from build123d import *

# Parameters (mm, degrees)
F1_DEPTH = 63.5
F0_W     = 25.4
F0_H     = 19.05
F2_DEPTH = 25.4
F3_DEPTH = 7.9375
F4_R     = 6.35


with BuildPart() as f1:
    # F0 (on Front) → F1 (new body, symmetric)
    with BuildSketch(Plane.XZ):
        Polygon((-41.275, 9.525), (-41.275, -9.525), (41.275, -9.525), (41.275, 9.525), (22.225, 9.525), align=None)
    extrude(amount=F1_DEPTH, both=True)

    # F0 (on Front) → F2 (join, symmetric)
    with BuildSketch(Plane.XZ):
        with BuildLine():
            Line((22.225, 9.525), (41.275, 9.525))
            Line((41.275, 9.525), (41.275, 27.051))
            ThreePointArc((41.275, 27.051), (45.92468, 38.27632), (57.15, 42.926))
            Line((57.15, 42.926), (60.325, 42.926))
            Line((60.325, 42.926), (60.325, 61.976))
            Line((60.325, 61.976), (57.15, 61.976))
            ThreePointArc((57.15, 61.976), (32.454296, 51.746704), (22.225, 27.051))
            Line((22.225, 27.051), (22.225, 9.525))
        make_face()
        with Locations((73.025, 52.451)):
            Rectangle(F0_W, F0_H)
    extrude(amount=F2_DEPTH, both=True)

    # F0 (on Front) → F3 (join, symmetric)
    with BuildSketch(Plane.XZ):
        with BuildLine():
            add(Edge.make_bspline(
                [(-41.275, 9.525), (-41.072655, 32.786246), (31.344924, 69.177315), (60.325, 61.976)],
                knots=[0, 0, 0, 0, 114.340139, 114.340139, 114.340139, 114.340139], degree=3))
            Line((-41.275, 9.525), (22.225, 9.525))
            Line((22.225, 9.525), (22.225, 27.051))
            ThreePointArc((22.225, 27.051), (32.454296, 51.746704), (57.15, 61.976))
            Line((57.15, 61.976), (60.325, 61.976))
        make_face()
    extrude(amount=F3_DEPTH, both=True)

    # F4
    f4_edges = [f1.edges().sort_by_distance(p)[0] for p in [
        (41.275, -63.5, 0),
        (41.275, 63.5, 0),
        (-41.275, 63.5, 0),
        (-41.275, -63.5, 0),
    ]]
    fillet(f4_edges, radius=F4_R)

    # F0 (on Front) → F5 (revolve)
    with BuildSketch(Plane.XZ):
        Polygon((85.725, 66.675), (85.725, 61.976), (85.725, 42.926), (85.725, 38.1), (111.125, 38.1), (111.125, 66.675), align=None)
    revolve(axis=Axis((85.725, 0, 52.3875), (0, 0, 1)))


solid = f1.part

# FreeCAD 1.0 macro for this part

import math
import FreeCAD as App
import Part
import Sketcher
from FreeCAD import Vector
Q = App.Units.Quantity


def edges_at(feature, points):
    """Names of the edges that pass closest to the given points."""
    edges = feature.Shape.Edges
    near = lambda p: min(range(len(edges)), key=lambda i: edges[i].distToShape(Part.Vertex(*p))[0])
    return sorted({f"Edge{near(p) + 1}" for p in points})

doc = App.newDocument("Part")
body = doc.addObject("PartDesign::Body", "Body")

sketch1 = doc.addObject("Sketcher::SketchObject", "Sketch")
body.addObject(sketch1)
sketch1.AttachmentSupport = (doc.XZ_Plane, [""])
sketch1.MapMode = "FlatFace"
sketch1.addGeometry([
    Part.LineSegment(Vector(-41, 10, 0), Vector(-41, -10, 0)),
    Part.LineSegment(Vector(-41, -10, 0), Vector(41, -10, 0)),
    Part.LineSegment(Vector(41, -10, 0), Vector(41, 10, 0)),
    Part.LineSegment(Vector(41, 10, 0), Vector(-41, 10, 0)),
], False)
sketch1.addConstraint([
    Sketcher.Constraint("Coincident", 0, 2, 1, 1),
    Sketcher.Constraint("Coincident", 1, 2, 2, 1),
    Sketcher.Constraint("Coincident", 2, 2, 3, 1),
    Sketcher.Constraint("Coincident", 3, 2, 0, 1),
    Sketcher.Constraint("Vertical", 0),
    Sketcher.Constraint("Horizontal", 1),
    Sketcher.Constraint("Vertical", 2),
    Sketcher.Constraint("Horizontal", 3),
    Sketcher.Constraint("Symmetric", 0, 2, 2, 2, -1, 1),
    Sketcher.Constraint("DistanceX", 1, 1, 1, 2, Q("3.25 in")),
    Sketcher.Constraint("DistanceY", 0, 2, 0, 1, Q("0.75 in")),
])
pad1 = doc.addObject("PartDesign::Pad", "Pad")
body.addObject(pad1)
pad1.Profile = sketch1
pad1.Length = Q("5 in")
pad1.Midplane = True

sketch2 = doc.addObject("Sketcher::SketchObject", "Sketch001")
body.addObject(sketch2)
sketch2.AttachmentSupport = (doc.XZ_Plane, [""])
sketch2.MapMode = "FlatFace"
sketch2.addGeometry([
    Part.LineSegment(Vector(22, 10, 0), Vector(41, 10, 0)),
    Part.LineSegment(Vector(41, 10, 0), Vector(41, 27, 0)),
    Part.ArcOfCircle(Part.Circle(Vector(57, 27, 0), Vector(0, 0, 1), 16), math.radians(90), math.radians(180)),
    Part.LineSegment(Vector(57, 43, 0), Vector(86, 43, 0)),
    Part.LineSegment(Vector(86, 43, 0), Vector(86, 62, 0)),
    Part.LineSegment(Vector(86, 62, 0), Vector(57, 62, 0)),
    Part.ArcOfCircle(Part.Circle(Vector(57, 27, 0), Vector(0, 0, 1), 35), math.radians(90), math.radians(180)),
    Part.LineSegment(Vector(22, 27, 0), Vector(22, 10, 0)),
], False)
sketch2.addConstraint([
    Sketcher.Constraint("Coincident", 0, 2, 1, 1),
    Sketcher.Constraint("Tangent", 1, 2, 2, 2),
    Sketcher.Constraint("Tangent", 2, 1, 3, 1),
    Sketcher.Constraint("Coincident", 3, 2, 4, 1),
    Sketcher.Constraint("Coincident", 4, 2, 5, 1),
    Sketcher.Constraint("Tangent", 5, 2, 6, 1),
    Sketcher.Constraint("Tangent", 6, 2, 7, 1),
    Sketcher.Constraint("Coincident", 7, 2, 0, 1),
    Sketcher.Constraint("Horizontal", 0),
    Sketcher.Constraint("Vertical", 1),
    Sketcher.Constraint("Horizontal", 3),
    Sketcher.Constraint("Vertical", 4),
    Sketcher.Constraint("Horizontal", 5),
    Sketcher.Constraint("Vertical", 7),
    Sketcher.Constraint("Coincident", 6, 3, 2, 3),
    Sketcher.Constraint("Radius", 2, Q("0.625 in")),
    Sketcher.Constraint("Radius", 6, Q("1.375 in")),
    Sketcher.Constraint("DistanceY", 1, 1, 1, 2, Q("0.69 in")),
    Sketcher.Constraint("DistanceX", 3, 1, 3, 2, Q("1.125 in")),
    Sketcher.Constraint("DistanceX", -1, 1, 2, 3, Q("2.25 in")),
    Sketcher.Constraint("DistanceY", -1, 1, 2, 1, Q("1.69 in")),
])
pad2 = doc.addObject("PartDesign::Pad", "Pad001")
body.addObject(pad2)
pad2.Profile = sketch2
pad2.Length = Q("2 in")
pad2.Midplane = True

sketch3 = doc.addObject("Sketcher::SketchObject", "Sketch002")
body.addObject(sketch3)
sketch3.AttachmentSupport = (doc.XZ_Plane, [""])
sketch3.MapMode = "FlatFace"
sketch3.addGeometry([
    Part.BSplineCurve([Vector(-41.275, 9.525, 0), Vector(-41.072655, 32.786246, 0), Vector(31.344924, 69.177315, 0), Vector(60.325, 61.976, 0)], [4, 4], [0, 114.340139], False, 3, [1, 1, 1, 1], False),
    Part.LineSegment(Vector(-41.275, 9.525, 0), Vector(22.225, 9.525, 0)),
    Part.LineSegment(Vector(22.225, 9.525, 0), Vector(22.225, 27.051, 0)),
    Part.ArcOfCircle(Part.Circle(Vector(57.150001, 27.050999, 0), Vector(0, 0, 1), 34.925001), math.radians(90.000002), math.radians(179.999998)),
    Part.LineSegment(Vector(57.15, 61.976, 0), Vector(60.325, 61.976, 0)),
], False)
sketch3.addConstraint([
    Sketcher.Constraint("Block", 0),
    Sketcher.Constraint("Coincident", 0, 1, 1, 1),
    Sketcher.Constraint("Coincident", 1, 2, 2, 1),
    Sketcher.Constraint("Tangent", 2, 2, 3, 2),
    Sketcher.Constraint("Tangent", 3, 1, 4, 1),
    Sketcher.Constraint("Coincident", 4, 2, 0, 2),
    Sketcher.Constraint("Horizontal", 1),
    Sketcher.Constraint("Vertical", 2),
    Sketcher.Constraint("Horizontal", 4),
    Sketcher.Constraint("DistanceX", 1, 1, 1, 2, Q("2.5 in")),
    Sketcher.Constraint("Radius", 3, Q("1.375 in")),
])
pad3 = doc.addObject("PartDesign::Pad", "Pad002")
body.addObject(pad3)
pad3.Profile = sketch3
pad3.Length = Q("0.625 in")
pad3.Midplane = True
doc.recompute()

fillet = doc.addObject("PartDesign::Fillet", "Fillet")
body.addObject(fillet)
fillet.Base = (pad3, edges_at(pad3, [
    (41.275, -63.5, 0),
    (41.275, 63.5, 0),
    (-41.275, 63.5, 0),
    (-41.275, -63.5, 0),
]))
fillet.Radius = Q("0.25 in")

sketch4 = doc.addObject("Sketcher::SketchObject", "Sketch003")
body.addObject(sketch4)
sketch4.AttachmentSupport = (doc.XZ_Plane, [""])
sketch4.MapMode = "FlatFace"
sketch4.addGeometry([
    Part.LineSegment(Vector(86, 67, 0), Vector(86, 38, 0)),
    Part.LineSegment(Vector(86, 38, 0), Vector(111, 38, 0)),
    Part.LineSegment(Vector(111, 38, 0), Vector(111, 67, 0)),
    Part.LineSegment(Vector(111, 67, 0), Vector(86, 67, 0)),
], False)
sketch4.addGeometry(Part.LineSegment(Vector(86, 38, 0), Vector(86, 67, 0)), True)
sketch4.addConstraint([
    Sketcher.Constraint("Coincident", 0, 2, 1, 1),
    Sketcher.Constraint("Coincident", 1, 2, 2, 1),
    Sketcher.Constraint("Coincident", 2, 2, 3, 1),
    Sketcher.Constraint("Coincident", 3, 2, 0, 1),
    Sketcher.Constraint("Vertical", 0),
    Sketcher.Constraint("Horizontal", 1),
    Sketcher.Constraint("Vertical", 2),
    Sketcher.Constraint("Horizontal", 3),
    Sketcher.Constraint("Vertical", 4),
    Sketcher.Constraint("Coincident", 4, 1, 0, 2),
    Sketcher.Constraint("Horizontal", 2, 2, 4, 2),
    Sketcher.Constraint("DistanceX", 1, 1, 1, 2, Q("1 in")),
    Sketcher.Constraint("DistanceY", -1, 1, 0, 2, Q("1.5 in")),
    Sketcher.Constraint("DistanceY", 0, 2, 0, 1, Q("1.125 in")),
    Sketcher.Constraint("DistanceX", -1, 1, 0, 2, Q("3.375 in")),
])
revolution = doc.addObject("PartDesign::Revolution", "Revolution")
body.addObject(revolution)
revolution.Profile = sketch4
revolution.ReferenceAxis = (sketch4, ["Axis0"])
revolution.Angle = 360

doc.recompute()
